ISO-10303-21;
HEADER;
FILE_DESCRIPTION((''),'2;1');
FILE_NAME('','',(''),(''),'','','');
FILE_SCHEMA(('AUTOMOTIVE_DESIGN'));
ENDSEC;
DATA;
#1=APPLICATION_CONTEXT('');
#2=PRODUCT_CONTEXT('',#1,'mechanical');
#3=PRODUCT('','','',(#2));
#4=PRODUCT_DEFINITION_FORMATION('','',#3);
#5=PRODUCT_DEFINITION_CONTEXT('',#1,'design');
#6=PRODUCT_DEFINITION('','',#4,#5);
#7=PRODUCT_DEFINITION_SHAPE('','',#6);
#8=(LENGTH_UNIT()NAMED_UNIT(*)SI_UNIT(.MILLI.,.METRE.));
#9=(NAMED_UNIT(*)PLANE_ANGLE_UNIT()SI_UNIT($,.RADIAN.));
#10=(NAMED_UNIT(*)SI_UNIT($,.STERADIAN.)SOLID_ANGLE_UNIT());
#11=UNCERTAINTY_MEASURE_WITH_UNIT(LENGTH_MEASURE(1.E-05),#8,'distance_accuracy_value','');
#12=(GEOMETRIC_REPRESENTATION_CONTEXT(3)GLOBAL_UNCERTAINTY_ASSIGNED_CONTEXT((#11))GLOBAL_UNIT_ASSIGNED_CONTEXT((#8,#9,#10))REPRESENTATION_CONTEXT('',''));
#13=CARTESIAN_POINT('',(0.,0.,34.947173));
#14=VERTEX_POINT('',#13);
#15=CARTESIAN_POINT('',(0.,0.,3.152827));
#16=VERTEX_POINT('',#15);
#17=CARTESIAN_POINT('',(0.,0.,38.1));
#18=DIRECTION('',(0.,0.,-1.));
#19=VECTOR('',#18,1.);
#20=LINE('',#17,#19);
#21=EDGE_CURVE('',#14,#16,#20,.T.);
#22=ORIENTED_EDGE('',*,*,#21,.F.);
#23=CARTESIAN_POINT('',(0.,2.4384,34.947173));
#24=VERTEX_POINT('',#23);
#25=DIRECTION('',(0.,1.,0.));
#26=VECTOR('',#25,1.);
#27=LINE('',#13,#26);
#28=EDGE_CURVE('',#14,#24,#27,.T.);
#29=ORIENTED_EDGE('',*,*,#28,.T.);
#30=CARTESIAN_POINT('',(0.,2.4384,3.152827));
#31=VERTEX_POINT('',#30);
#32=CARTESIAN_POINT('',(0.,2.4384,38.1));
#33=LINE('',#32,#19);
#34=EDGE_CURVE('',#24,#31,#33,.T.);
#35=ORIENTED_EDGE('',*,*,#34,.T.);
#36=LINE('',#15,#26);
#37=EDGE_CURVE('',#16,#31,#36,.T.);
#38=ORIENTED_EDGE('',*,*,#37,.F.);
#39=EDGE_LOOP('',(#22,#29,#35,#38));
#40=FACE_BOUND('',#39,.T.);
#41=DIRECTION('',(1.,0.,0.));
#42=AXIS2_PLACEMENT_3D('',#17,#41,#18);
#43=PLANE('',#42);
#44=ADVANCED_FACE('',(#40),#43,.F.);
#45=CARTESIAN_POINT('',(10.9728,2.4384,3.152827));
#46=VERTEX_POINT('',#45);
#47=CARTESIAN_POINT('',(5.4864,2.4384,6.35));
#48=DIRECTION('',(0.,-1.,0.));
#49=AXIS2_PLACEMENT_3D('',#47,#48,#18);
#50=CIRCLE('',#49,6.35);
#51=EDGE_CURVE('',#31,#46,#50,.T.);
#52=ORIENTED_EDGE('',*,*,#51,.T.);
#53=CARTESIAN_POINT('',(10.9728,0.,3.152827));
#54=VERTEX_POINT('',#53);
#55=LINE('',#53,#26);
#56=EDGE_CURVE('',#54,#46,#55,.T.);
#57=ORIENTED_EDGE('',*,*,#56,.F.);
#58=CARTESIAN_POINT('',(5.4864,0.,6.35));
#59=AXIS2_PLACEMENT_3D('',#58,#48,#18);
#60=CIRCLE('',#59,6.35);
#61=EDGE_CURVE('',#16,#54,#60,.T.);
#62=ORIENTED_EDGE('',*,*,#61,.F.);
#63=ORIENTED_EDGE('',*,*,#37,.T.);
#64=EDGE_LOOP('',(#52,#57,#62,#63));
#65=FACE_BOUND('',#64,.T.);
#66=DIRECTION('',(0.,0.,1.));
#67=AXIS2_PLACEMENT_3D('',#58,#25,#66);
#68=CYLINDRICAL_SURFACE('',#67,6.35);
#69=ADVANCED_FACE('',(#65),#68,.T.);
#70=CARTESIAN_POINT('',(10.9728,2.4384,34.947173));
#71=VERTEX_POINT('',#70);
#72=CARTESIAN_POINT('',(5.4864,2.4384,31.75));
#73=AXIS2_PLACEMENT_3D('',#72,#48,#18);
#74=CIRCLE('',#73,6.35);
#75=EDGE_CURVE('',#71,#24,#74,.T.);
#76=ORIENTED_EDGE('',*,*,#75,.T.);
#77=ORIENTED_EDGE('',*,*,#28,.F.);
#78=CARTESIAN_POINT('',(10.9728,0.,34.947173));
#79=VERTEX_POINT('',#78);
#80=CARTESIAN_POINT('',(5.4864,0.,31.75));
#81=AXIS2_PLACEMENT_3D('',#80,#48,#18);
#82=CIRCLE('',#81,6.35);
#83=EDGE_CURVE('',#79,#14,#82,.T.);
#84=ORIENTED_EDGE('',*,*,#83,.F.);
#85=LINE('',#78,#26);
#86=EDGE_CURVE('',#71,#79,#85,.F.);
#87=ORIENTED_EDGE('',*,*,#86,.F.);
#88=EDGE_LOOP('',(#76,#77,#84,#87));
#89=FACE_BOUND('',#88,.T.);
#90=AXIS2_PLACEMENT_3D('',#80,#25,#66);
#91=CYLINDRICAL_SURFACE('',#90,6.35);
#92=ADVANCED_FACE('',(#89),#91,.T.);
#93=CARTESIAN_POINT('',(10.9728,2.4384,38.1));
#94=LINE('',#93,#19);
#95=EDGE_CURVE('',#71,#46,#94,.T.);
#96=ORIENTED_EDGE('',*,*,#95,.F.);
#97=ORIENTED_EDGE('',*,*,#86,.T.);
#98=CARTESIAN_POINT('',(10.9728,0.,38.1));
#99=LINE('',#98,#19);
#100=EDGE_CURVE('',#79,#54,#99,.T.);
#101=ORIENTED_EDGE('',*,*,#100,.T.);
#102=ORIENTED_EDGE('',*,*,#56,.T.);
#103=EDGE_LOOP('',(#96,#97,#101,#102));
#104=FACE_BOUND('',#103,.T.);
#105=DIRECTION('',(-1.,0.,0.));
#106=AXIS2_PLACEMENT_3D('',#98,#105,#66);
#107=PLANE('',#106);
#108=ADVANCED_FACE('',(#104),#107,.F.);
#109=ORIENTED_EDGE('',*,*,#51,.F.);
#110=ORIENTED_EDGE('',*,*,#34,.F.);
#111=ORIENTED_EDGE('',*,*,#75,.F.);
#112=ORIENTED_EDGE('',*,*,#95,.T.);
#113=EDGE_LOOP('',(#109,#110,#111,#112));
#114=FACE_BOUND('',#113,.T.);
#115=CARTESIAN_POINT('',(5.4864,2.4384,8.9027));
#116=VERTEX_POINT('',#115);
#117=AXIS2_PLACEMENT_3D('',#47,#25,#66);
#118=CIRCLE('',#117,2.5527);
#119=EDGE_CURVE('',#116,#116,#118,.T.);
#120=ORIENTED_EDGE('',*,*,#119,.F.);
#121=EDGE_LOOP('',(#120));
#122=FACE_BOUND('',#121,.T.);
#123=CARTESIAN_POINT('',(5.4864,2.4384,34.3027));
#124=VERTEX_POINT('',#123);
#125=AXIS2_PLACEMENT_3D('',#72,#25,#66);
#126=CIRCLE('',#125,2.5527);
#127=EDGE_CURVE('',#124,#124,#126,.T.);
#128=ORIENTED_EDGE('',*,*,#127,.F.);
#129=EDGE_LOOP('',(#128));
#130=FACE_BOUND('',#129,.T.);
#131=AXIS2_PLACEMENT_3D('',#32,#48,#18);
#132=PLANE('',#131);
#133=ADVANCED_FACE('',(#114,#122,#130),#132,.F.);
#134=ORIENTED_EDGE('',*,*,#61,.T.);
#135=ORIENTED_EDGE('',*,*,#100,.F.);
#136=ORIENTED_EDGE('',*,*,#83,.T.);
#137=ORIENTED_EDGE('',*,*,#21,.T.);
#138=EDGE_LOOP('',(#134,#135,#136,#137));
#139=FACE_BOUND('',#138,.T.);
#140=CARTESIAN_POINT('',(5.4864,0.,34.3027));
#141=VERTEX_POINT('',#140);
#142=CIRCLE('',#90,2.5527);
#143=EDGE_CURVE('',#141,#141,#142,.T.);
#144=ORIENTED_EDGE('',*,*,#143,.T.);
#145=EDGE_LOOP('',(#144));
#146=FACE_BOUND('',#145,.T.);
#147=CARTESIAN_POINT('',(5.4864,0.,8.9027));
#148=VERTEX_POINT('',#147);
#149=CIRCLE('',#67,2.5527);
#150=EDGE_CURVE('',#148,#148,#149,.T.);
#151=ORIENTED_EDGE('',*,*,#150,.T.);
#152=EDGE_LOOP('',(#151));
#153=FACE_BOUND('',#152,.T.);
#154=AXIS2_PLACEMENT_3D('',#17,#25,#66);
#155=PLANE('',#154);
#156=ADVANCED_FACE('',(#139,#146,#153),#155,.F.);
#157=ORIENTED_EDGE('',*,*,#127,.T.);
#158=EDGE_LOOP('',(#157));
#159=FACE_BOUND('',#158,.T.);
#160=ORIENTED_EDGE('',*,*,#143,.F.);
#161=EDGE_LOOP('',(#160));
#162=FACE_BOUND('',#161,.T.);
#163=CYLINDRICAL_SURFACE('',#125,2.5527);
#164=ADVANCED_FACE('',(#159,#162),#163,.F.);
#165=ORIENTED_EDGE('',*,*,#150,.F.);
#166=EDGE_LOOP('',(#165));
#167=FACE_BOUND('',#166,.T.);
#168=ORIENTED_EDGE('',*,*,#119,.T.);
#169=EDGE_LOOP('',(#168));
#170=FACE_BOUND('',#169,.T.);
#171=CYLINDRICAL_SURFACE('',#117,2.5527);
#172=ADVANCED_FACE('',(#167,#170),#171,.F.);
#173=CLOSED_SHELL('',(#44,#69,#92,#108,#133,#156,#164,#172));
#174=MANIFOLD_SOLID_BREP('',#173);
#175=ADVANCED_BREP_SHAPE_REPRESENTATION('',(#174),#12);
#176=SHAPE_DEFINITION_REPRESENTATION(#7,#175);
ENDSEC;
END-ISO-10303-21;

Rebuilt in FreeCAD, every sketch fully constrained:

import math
import FreeCAD as App
import Part
import Sketcher
from FreeCAD import Vector
Q = App.Units.Quantity


def add_polygon(sketch, points):
    """Adds a closed chain of lines whose ends are joined by coincident constraints."""
    first, n = sketch.GeometryCount, len(points)
    for a, b in zip(points, points[1:] + points[:1]):
        sketch.addGeometry(Part.LineSegment(App.Vector(*a, 0), App.Vector(*b, 0)), False)
    for i in range(n):
        sketch.addConstraint(Sketcher.Constraint("Coincident", first + i, 2, first + (i + 1) % n, 1))

doc = App.newDocument("Part")
body = doc.addObject("PartDesign::Body", "Body")

# Sketch on XY plane
sketch1 = body.newObject("Sketcher::SketchObject", "Sketch")
sketch1.AttachmentSupport = (doc.getObject("XY_Plane"), [""])
sketch1.MapMode = "FlatFace"
add_polygon(sketch1, [(0, 2.4384), (0, 0), (10.9728, 0), (10.9728, 2.4384)])  # lines 0-3
sketch1.addConstraint([
    Sketcher.Constraint("Vertical", 0),
    Sketcher.Constraint("Horizontal", 1),
    Sketcher.Constraint("Vertical", 2),
    Sketcher.Constraint("Horizontal", 3),
    Sketcher.Constraint("Coincident", 0, 2, -1, 1),
    Sketcher.Constraint("DistanceX", 1, 1, 1, 2, Q("0.432 in")),
    Sketcher.Constraint("DistanceY", 0, 2, 0, 1, Q("0.096 in")),
])
pad1 = body.newObject("PartDesign::Pad", "Pad")
pad1.Profile = sketch1
pad1.Length = Q("1.5 in")

# Sketch on XZ plane
sketch2 = body.newObject("Sketcher::SketchObject", "Sketch001")
sketch2.AttachmentSupport = (doc.getObject("XZ_Plane"), [""])
sketch2.MapMode = "FlatFace"
sketch2.AttachmentOffset = App.Placement(Vector(0, 0, -0.096 * 25.4), App.Rotation())
sketch2.addGeometry([
    Part.Circle(Vector(5.4864, 6.35, 0), Vector(0, 0, 1), 2.5527),
    Part.Circle(Vector(5.4864, 31.75, 0), Vector(0, 0, 1), 2.5527),
], False)
sketch2.addConstraint([
    Sketcher.Constraint("Equal", 0, 1),
    Sketcher.Constraint("Vertical", 0, 3, 1, 3),
    Sketcher.Constraint("Diameter", 0, Q("0.201 in")),
    Sketcher.Constraint("DistanceY", 0, 3, 1, 3, Q("1 in")),
    Sketcher.Constraint("DistanceY", -1, 1, 0, 3, Q("0.25 in")),
    Sketcher.Constraint("DistanceX", -1, 1, 0, 3, Q("0.216 in")),
])
doc.recompute()
hole = body.newObject("PartDesign::Hole", "Hole")
hole.Profile = sketch2
hole.ThreadType = "None"
hole.Diameter = Q("0.201 in")
hole.DepthType = "ThroughAll"
hole.Reversed = True

# Sketch on XZ plane
sketch3 = body.newObject("Sketcher::SketchObject", "Sketch002")
sketch3.AttachmentSupport = (doc.getObject("XZ_Plane"), [""])
sketch3.MapMode = "FlatFace"
sketch3.AttachmentOffset = App.Placement(Vector(0, 0, -0.096 * 25.4), App.Rotation())
sketch3.addGeometry([
    Part.ArcOfCircle(Part.Circle(Vector(5.4864, 6.35, 0), Vector(0, 0, 1), 6.35), math.radians(-149.768714), math.radians(-90)),  # 0
    Part.LineSegment(Vector(5.4864, 0, 0), Vector(0, 0, 0)),  # 1
    Part.LineSegment(Vector(0, 0, 0), Vector(0, 3.152827, 0)),  # 2
    Part.ArcOfCircle(Part.Circle(Vector(5.4864, 6.35, 0), Vector(0, 0, 1), 6.35), math.radians(-90), math.radians(-30.215918)),  # 3
    Part.LineSegment(Vector(10.973657, 3.154299, 0), Vector(10.9728, 0, 0)),  # 4
    Part.LineSegment(Vector(10.9728, 0, 0), Vector(5.4864, 0, 0)),  # 5
    Part.LineSegment(Vector(10.9728, 38.1, 0), Vector(10.973657, 34.945701, 0)),  # 6
    Part.ArcOfCircle(Part.Circle(Vector(5.4864, 31.75, 0), Vector(0, 0, 1), 6.35), math.radians(30.215918), math.radians(90)),  # 7
    Part.LineSegment(Vector(5.4864, 38.1, 0), Vector(10.9728, 38.1, 0)),  # 8
    Part.LineSegment(Vector(0, 38.1, 0), Vector(5.4864, 38.1, 0)),  # 9
    Part.ArcOfCircle(Part.Circle(Vector(5.4864, 31.75, 0), Vector(0, 0, 1), 6.35), math.radians(90), math.radians(149.768714)),  # 10
    Part.LineSegment(Vector(0, 34.947173, 0), Vector(0, 38.1, 0)),  # 11
], False)
sketch3.addConstraint([
    Sketcher.Constraint("Tangent", 0, 2, 1, 1),
    Sketcher.Constraint("Coincident", 1, 2, 2, 1),
    Sketcher.Constraint("Coincident", 2, 2, 0, 1),
    Sketcher.Constraint("Coincident", 3, 2, 4, 1),
    Sketcher.Constraint("Coincident", 4, 2, 5, 1),
    Sketcher.Constraint("Tangent", 5, 2, 3, 1),
    Sketcher.Constraint("Coincident", 6, 2, 7, 1),
    Sketcher.Constraint("Tangent", 7, 2, 8, 1),
    Sketcher.Constraint("Coincident", 8, 2, 6, 1),
    Sketcher.Constraint("Tangent", 9, 2, 10, 1),
    Sketcher.Constraint("Coincident", 10, 2, 11, 1),
    Sketcher.Constraint("Coincident", 11, 2, 9, 1),
    Sketcher.Constraint("Horizontal", 1),
    Sketcher.Constraint("Vertical", 2),
    Sketcher.Constraint("Horizontal", 5),
    Sketcher.Constraint("Horizontal", 8),
    Sketcher.Constraint("Horizontal", 9),
    Sketcher.Constraint("Vertical", 11),
    Sketcher.Constraint("Coincident", 1, 2, -1, 1),
    Sketcher.Constraint("Coincident", 3, 3, 0, 3),
    Sketcher.Constraint("Coincident", 10, 3, 7, 3),
    Sketcher.Constraint("Equal", 0, 3),
    Sketcher.Constraint("Equal", 3, 7),
    Sketcher.Constraint("Equal", 7, 10),
    Sketcher.Constraint("PointOnObject", 10, 2, -2),
    Sketcher.Constraint("Vertical", 3, 3, 7, 3),
    Sketcher.Constraint("Vertical", 3, 2, 6, 2),
    Sketcher.Constraint("Vertical", 4, 2, 8, 2),
    Sketcher.Constraint("Equal", 1, 5),
    Sketcher.Constraint("Radius", 0, Q("0.25 in")),
    Sketcher.Constraint("DistanceY", 0, 3, 7, 3, Q("1 in")),
    Sketcher.Constraint("DistanceX", 1, 2, 1, 1, Q("0.216 in")),
    Sketcher.Constraint("Distance", 4, 3.154299),
])
pocket1 = body.newObject("PartDesign::Pocket", "Pocket")
pocket1.Profile = sketch3
pocket1.Type = "ThroughAll"
pocket1.Reversed = True

doc.recompute()
